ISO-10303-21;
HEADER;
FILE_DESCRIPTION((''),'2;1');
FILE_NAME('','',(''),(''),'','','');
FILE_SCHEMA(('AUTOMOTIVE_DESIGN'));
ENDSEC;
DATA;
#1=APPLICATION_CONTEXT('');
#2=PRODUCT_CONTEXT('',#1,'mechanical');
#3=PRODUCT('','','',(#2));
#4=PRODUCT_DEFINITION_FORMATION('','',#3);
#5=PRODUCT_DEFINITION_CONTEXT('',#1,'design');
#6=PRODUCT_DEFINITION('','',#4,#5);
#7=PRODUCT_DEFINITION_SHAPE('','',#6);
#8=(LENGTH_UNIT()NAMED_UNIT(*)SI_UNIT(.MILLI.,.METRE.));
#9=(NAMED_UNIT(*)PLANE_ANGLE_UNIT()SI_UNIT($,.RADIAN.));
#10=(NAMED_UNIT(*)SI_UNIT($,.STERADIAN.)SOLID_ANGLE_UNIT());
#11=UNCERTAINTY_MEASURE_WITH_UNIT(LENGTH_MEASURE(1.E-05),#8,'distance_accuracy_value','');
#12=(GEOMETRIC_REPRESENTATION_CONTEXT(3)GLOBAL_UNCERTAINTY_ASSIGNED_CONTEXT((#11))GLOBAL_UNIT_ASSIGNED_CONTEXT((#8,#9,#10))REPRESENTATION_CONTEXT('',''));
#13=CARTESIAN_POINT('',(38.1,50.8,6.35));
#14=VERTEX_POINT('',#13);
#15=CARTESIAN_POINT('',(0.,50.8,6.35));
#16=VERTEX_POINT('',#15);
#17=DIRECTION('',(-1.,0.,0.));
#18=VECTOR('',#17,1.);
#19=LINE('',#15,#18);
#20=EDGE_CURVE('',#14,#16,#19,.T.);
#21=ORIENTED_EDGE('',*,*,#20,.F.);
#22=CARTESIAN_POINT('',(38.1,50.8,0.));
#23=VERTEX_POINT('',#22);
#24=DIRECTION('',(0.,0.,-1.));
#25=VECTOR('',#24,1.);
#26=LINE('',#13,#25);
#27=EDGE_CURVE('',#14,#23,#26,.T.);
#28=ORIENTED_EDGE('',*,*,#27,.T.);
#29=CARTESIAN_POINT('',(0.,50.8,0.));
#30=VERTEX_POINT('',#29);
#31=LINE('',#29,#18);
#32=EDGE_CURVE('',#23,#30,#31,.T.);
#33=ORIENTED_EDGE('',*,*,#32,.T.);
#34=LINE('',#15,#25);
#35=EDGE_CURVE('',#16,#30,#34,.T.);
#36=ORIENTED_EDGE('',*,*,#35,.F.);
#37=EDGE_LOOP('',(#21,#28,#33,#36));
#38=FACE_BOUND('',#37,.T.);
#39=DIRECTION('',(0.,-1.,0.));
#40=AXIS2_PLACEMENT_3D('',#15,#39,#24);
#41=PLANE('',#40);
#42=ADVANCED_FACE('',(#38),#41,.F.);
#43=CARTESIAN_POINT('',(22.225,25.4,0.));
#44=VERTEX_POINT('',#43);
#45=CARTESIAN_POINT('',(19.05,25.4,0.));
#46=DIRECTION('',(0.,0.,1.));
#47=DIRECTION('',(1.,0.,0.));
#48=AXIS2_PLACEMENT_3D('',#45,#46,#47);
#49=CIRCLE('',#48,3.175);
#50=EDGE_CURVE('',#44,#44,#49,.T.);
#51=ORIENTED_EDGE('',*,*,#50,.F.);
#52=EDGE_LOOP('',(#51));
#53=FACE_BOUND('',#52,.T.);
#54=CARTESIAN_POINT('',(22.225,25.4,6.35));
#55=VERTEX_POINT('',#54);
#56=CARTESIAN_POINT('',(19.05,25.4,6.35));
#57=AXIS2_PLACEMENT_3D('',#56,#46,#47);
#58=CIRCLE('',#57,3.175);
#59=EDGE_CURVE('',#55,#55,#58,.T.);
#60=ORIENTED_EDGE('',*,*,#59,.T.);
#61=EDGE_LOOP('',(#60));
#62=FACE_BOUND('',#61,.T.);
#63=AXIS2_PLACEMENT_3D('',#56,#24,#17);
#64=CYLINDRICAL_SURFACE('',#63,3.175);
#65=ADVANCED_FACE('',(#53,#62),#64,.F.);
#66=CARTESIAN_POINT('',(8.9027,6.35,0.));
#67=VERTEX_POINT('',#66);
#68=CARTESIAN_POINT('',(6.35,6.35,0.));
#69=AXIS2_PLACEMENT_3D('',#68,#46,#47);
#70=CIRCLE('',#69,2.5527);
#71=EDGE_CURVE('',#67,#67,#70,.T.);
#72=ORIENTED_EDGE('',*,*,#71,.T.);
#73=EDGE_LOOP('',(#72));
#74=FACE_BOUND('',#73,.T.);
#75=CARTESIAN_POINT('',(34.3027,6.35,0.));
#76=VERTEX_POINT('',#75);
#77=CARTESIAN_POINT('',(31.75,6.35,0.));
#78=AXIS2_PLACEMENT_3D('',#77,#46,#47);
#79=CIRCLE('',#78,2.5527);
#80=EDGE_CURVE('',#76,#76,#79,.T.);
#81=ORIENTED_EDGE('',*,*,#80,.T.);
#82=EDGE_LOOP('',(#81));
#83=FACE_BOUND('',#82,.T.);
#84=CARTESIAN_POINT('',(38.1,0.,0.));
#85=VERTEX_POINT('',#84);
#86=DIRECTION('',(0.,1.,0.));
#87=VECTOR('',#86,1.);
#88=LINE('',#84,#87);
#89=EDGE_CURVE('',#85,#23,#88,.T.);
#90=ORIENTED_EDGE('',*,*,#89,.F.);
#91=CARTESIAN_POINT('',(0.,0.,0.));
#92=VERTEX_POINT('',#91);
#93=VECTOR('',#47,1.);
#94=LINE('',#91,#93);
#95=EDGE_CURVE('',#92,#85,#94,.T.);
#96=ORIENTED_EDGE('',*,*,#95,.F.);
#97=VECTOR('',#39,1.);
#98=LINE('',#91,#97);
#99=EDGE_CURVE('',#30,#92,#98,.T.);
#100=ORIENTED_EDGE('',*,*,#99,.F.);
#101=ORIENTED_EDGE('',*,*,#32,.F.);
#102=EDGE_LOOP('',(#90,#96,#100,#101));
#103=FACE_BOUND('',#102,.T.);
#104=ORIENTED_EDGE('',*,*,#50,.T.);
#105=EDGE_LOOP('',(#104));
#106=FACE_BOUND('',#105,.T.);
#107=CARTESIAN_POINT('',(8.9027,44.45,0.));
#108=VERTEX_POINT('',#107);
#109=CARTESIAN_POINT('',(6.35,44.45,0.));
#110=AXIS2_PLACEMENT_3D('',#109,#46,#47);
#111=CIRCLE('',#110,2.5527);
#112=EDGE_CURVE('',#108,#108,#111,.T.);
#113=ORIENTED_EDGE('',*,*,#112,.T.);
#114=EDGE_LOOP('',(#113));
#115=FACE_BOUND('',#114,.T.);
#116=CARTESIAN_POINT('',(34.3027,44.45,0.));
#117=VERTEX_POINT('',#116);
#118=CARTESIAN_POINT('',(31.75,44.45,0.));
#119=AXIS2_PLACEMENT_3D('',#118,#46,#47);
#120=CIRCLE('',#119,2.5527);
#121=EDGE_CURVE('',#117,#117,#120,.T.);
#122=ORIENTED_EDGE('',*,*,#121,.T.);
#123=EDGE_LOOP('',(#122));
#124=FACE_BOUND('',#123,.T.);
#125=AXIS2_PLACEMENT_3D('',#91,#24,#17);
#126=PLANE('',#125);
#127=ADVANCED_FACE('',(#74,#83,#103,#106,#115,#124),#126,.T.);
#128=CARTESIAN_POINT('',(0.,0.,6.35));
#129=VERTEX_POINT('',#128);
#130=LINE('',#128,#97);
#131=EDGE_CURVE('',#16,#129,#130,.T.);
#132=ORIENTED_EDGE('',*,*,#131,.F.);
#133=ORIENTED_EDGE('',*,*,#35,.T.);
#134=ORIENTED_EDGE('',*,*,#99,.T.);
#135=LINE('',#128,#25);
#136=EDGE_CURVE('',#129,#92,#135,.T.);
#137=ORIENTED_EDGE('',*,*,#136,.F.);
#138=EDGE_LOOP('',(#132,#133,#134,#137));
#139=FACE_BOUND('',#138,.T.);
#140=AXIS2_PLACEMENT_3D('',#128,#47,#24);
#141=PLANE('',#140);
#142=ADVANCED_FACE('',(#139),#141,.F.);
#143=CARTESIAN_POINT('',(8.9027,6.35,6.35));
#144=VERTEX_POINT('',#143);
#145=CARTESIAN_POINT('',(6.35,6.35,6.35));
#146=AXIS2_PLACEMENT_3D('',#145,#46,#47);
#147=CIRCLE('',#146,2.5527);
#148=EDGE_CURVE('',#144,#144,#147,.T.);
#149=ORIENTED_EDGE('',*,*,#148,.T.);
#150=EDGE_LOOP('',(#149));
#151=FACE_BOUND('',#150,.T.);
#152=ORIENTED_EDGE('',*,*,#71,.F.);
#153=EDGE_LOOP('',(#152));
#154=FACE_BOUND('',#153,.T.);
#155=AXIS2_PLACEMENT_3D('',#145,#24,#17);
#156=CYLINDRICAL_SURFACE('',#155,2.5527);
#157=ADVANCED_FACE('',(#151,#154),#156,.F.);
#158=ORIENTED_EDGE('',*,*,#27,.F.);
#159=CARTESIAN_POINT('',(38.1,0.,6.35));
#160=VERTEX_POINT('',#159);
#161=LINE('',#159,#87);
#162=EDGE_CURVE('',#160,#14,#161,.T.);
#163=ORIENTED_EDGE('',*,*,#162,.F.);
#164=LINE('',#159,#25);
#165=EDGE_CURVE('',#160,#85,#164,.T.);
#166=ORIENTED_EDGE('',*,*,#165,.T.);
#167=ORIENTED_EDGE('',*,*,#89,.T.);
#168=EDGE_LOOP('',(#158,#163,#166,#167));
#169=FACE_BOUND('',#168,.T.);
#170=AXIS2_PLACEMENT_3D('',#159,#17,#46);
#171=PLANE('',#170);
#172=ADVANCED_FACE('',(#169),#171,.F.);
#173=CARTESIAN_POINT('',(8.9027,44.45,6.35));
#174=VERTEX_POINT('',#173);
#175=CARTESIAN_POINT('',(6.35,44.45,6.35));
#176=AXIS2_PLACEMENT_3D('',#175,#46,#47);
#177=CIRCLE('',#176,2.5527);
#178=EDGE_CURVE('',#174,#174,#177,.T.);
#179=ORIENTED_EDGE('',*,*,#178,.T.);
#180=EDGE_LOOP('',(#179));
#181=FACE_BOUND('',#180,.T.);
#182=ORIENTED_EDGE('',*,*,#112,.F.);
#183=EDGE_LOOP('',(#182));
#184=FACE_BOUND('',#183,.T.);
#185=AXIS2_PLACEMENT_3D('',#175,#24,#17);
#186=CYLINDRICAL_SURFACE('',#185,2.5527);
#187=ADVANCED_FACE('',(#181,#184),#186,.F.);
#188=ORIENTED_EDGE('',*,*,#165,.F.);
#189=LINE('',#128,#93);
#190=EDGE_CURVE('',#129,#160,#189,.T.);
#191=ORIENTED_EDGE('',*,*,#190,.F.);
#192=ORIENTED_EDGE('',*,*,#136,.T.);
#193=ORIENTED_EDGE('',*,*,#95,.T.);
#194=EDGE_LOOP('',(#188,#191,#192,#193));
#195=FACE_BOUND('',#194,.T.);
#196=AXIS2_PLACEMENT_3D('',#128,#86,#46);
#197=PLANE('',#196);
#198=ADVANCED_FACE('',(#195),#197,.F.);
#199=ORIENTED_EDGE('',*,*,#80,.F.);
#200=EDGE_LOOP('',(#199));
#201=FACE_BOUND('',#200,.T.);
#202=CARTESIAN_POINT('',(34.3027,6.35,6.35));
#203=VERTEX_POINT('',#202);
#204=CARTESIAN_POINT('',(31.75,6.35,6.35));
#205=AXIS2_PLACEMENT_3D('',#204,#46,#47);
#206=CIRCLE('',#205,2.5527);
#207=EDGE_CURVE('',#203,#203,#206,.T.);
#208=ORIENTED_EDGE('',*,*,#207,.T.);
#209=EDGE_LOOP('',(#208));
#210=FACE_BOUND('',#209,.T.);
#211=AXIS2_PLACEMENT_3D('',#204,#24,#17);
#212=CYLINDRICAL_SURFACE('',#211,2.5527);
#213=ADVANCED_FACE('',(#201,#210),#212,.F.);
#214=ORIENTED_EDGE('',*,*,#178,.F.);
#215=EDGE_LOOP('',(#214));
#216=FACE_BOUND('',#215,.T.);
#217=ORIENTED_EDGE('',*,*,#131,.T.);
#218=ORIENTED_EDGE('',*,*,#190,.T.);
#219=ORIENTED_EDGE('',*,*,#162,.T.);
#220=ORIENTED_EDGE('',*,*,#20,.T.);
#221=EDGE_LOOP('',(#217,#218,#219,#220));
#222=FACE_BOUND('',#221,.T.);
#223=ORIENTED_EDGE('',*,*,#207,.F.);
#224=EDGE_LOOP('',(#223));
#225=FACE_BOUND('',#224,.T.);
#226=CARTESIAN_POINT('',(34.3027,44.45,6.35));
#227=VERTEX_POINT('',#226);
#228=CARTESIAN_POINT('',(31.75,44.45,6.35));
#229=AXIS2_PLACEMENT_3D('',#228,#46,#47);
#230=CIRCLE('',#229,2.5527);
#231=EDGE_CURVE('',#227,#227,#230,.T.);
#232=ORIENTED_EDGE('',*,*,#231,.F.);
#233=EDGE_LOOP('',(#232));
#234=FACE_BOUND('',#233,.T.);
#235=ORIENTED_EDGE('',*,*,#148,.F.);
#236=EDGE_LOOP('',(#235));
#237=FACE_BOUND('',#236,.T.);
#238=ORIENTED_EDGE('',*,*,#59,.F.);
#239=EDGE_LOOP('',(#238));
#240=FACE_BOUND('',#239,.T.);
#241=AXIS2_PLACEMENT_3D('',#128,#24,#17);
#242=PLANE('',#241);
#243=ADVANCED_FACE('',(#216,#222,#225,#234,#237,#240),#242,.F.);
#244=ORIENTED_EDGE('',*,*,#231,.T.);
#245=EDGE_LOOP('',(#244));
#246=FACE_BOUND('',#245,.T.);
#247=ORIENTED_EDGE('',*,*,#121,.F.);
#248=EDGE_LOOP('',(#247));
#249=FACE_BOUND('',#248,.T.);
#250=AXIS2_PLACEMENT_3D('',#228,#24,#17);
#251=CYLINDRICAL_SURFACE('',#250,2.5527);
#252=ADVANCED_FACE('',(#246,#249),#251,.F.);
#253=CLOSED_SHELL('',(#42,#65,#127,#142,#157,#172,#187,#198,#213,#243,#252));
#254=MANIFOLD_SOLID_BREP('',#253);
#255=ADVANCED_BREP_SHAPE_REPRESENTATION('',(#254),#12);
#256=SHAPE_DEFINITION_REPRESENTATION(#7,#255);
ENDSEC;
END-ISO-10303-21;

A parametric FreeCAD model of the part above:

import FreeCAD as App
import Part
import Sketcher

V = App.Vector
Q = App.Units.Quantity


def add_polygon(sketch, points):
    """Adds a closed chain of lines whose ends are joined by coincident constraints."""
    first, n = sketch.GeometryCount, len(points)
    for a, b in zip(points, points[1:] + points[:1]):
        sketch.addGeometry(Part.LineSegment(App.Vector(*a, 0), App.Vector(*b, 0)), False)
    for i in range(n):
        sketch.addConstraint(Sketcher.Constraint("Coincident", first + i, 2, first + (i + 1) % n, 1))

doc = App.newDocument("Part")
body = doc.addObject("PartDesign::Body", "Body")

# Sketch on XY plane
sketch1 = body.newObject("Sketcher::SketchObject", "Sketch")
sketch1.AttachmentSupport = (doc.getObject("XY_Plane"), [""])
sketch1.MapMode = "FlatFace"
add_polygon(sketch1, [(0, 50.8), (0, 0), (38.1, 0), (38.1, 50.8)])  # lines 0-3
sketch1.addGeometry(Part.Circle(V(6.35, 6.35, 0), V(0, 0, 1), 2.5527), False)  # 4
sketch1.addGeometry(Part.Circle(V(31.75, 6.35, 0), V(0, 0, 1), 2.5527), False)  # 5
sketch1.addGeometry(Part.Circle(V(19.05, 25.4, 0), V(0, 0, 1), 3.175), False)  # 6
sketch1.addGeometry(Part.Circle(V(6.35, 44.45, 0), V(0, 0, 1), 2.5527), False)  # 7
sketch1.addGeometry(Part.Circle(V(31.75, 44.45, 0), V(0, 0, 1), 2.5527), False)  # 8
sketch1.addConstraint([
    Sketcher.Constraint("Vertical", 0),
    Sketcher.Constraint("Horizontal", 1),
    Sketcher.Constraint("Vertical", 2),
    Sketcher.Constraint("Horizontal", 3),
    Sketcher.Constraint("Coincident", 0, 2, -1, 1),
    Sketcher.Constraint("Equal", 4, 5),
    Sketcher.Constraint("Equal", 5, 7),
    Sketcher.Constraint("Equal", 7, 8),
    Sketcher.Constraint("Horizontal", 4, 3, 5, 3),
    Sketcher.Constraint("Horizontal", 7, 3, 8, 3),
    Sketcher.Constraint("Vertical", 4, 3, 7, 3),
    Sketcher.Constraint("Vertical", 5, 3, 8, 3),
    Sketcher.Constraint("Diameter", 6, Q("0.25 in")),
    Sketcher.Constraint("DistanceY", 0, 2, 0, 1, Q("2 in")),
    Sketcher.Constraint("Diameter", 4, Q("0.201 in")),
    Sketcher.Constraint("DistanceX", 1, 1, 1, 2, Q("1.5 in")),
    Sketcher.Constraint("DistanceY", -1, 1, 6, 3, Q("1 in")),
    Sketcher.Constraint("DistanceX", 4, 3, 5, 3, Q("1 in")),
    Sketcher.Constraint("DistanceX", 4, 3, 6, 3, Q("0.5 in")),
    Sketcher.Constraint("DistanceY", 4, 3, 7, 3, Q("1.5 in")),
    Sketcher.Constraint("DistanceX", -1, 1, 4, 3, Q("0.25 in")),
    Sketcher.Constraint("DistanceY", -1, 1, 4, 3, Q("0.25 in")),
])
pad1 = body.newObject("PartDesign::Pad", "Pad")
pad1.Profile = sketch1
pad1.Length = Q("0.25 in")

doc.recompute()
